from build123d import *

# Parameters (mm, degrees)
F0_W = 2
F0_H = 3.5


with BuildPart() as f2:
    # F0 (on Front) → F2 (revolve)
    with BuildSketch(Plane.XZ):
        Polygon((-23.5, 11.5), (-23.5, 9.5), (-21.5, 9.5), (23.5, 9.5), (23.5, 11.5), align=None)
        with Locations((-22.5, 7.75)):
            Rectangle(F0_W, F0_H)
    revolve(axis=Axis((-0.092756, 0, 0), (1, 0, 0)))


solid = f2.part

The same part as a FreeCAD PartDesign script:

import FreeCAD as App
import Part
import Sketcher

V = App.Vector

doc = App.newDocument("Part")
body = doc.addObject("PartDesign::Body", "Body")

# Sketch on XZ plane
sketch1 = body.newObject("Sketcher::SketchObject", "Sketch")
sketch1.AttachmentSupport = (doc.getObject("XZ_Plane"), [""])
sketch1.MapMode = "FlatFace"
sketch1.addGeometry(Part.LineSegment(V(-23.5, 11.5, 0), V(-23.5, 6, 0)), False)
sketch1.addGeometry(Part.LineSegment(V(-23.5, 6, 0), V(-21.5, 6, 0)), False)
sketch1.addGeometry(Part.LineSegment(V(-21.5, 6, 0), V(-21.5, 9.5, 0)), False)
sketch1.addGeometry(Part.LineSegment(V(-21.5, 9.5, 0), V(23.5, 9.5, 0)), False)
sketch1.addGeometry(Part.LineSegment(V(23.5, 9.5, 0), V(23.5, 11.5, 0)), False)
sketch1.addGeometry(Part.LineSegment(V(23.5, 11.5, 0), V(-23.5, 11.5, 0)), False)
sketch1.addConstraint(Sketcher.Constraint("Coincident", 0, 2, 1, 1))
sketch1.addConstraint(Sketcher.Constraint("Coincident", 1, 2, 2, 1))
sketch1.addConstraint(Sketcher.Constraint("Coincident", 2, 2, 3, 1))
sketch1.addConstraint(Sketcher.Constraint("Coincident", 3, 2, 4, 1))
sketch1.addConstraint(Sketcher.Constraint("Coincident", 4, 2, 5, 1))
sketch1.addConstraint(Sketcher.Constraint("Coincident", 5, 2, 0, 1))
sketch1.addConstraint(Sketcher.Constraint("Vertical", 0))
sketch1.addConstraint(Sketcher.Constraint("Horizontal", 1))
sketch1.addConstraint(Sketcher.Constraint("Vertical", 2))
sketch1.addConstraint(Sketcher.Constraint("Horizontal", 3))
sketch1.addConstraint(Sketcher.Constraint("Vertical", 4))
sketch1.addConstraint(Sketcher.Constraint("Horizontal", 5))
sketch1.addConstraint(Sketcher.Constraint("Equal", 1, 4))
sketch1.addConstraint(Sketcher.Constraint("DistanceX", 1, 1, 1, 2, 2.0))
sketch1.addConstraint(Sketcher.Constraint("DistanceX", 3, 1, 3, 2, 45.0))
sketch1.addConstraint(Sketcher.Constraint("DistanceY", 0, 2, 0, 1, 5.5))
sketch1.addConstraint(Sketcher.Constraint("DistanceY", -1, 1, 0, 2, 6.0))
sketch1.addConstraint(Sketcher.Constraint("DistanceX", 0, 2, -1, 1, 23.5))
revolution = body.newObject("PartDesign::Revolution", "Revolution")
revolution.Profile = sketch1
revolution.ReferenceAxis = (sketch1, ["H_Axis"])
revolution.Angle = 360

doc.recompute()
